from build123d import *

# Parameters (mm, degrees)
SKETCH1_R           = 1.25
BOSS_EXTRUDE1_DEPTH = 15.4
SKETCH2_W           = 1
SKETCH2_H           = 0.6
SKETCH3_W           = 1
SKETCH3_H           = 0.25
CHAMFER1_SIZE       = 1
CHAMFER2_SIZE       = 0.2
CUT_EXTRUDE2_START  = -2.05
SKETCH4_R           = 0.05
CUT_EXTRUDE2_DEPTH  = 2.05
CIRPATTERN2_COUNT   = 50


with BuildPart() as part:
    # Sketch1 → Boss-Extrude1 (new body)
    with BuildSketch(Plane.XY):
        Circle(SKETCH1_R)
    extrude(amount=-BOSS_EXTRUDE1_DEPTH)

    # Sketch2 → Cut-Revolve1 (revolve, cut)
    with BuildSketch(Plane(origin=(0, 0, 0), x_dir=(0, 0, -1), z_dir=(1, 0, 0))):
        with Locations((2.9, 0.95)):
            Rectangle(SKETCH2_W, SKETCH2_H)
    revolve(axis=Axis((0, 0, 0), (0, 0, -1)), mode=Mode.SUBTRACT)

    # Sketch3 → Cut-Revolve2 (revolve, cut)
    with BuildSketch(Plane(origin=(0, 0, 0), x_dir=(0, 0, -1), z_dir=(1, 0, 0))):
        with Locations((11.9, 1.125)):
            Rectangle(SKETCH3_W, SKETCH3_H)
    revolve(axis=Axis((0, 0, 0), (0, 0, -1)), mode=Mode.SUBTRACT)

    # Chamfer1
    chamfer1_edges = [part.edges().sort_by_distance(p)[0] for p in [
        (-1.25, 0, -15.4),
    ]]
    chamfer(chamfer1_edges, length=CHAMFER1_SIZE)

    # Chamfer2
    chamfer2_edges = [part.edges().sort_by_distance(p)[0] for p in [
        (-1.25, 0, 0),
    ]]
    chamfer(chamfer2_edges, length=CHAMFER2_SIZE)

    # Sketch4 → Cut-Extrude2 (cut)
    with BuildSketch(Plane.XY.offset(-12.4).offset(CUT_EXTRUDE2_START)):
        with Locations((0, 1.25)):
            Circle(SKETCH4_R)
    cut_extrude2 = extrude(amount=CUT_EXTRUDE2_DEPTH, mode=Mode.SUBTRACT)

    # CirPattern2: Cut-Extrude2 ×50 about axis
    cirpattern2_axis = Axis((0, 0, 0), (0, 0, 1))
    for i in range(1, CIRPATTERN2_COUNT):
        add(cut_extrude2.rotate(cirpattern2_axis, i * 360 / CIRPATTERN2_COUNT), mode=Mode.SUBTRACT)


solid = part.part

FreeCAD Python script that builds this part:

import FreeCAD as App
import Part
import Sketcher
from FreeCAD import Vector


def edges_at(feature, points):
    """Names of the edges that pass closest to the given points."""
    edges = feature.Shape.Edges
    near = lambda p: min(range(len(edges)), key=lambda i: edges[i].distToShape(Part.Vertex(*p))[0])
    return sorted({f"Edge{near(p) + 1}" for p in points})


def add_polygon(sketch, points):
    """Adds a closed chain of lines whose ends are joined by coincident constraints."""
    first, n = sketch.GeometryCount, len(points)
    for a, b in zip(points, points[1:] + points[:1]):
        sketch.addGeometry(Part.LineSegment(App.Vector(*a, 0), App.Vector(*b, 0)), False)
    for i in range(n):
        sketch.addConstraint(Sketcher.Constraint("Coincident", first + i, 2, first + (i + 1) % n, 1))

doc = App.newDocument("Part")
body = doc.addObject("PartDesign::Body", "Body")

# Sketch on XY plane
sketch1 = body.newObject("Sketcher::SketchObject", "Sketch")
sketch1.AttachmentSupport = (doc.getObject("XY_Plane"), [""])
sketch1.MapMode = "FlatFace"
sketch1.addGeometry(Part.Circle(Vector(0, 0, 0), Vector(0, 0, 1), 1.2), False)
sketch1.addConstraint([
    Sketcher.Constraint("Coincident", 0, 3, -1, 1),
    Sketcher.Constraint("Diameter", 0, 2.5),
])
pad1 = body.newObject("PartDesign::Pad", "Pad")
pad1.Profile = sketch1
pad1.Length = 15.4
pad1.Reversed = True

# Sketch on YZ plane
sketch2 = body.newObject("Sketcher::SketchObject", "Sketch001")
sketch2.AttachmentSupport = (doc.getObject("YZ_Plane"), [""])
sketch2.MapMode = "FlatFace"
add_polygon(sketch2, [(1.2, -2.4), (0.7, -2.4), (0.7, -3.4), (1.2, -3.4)])  # lines 0-3
sketch2.addConstraint([
    Sketcher.Constraint("Horizontal", 0),
    Sketcher.Constraint("Vertical", 1),
    Sketcher.Constraint("Horizontal", 2),
    Sketcher.Constraint("Vertical", 3),
    Sketcher.Constraint("DistanceY", 1, 2, 1, 1, 1.0),
    Sketcher.Constraint("DistanceX", 0, 2, 0, 1, 0.6),
    Sketcher.Constraint("DistanceY", 0, 2, -1, 1, 2.4),
    Sketcher.Constraint("DistanceX", -1, 1, 0, 2, 0.65),
])
groove = body.newObject("PartDesign::Groove", "Groove")
groove.Profile = sketch2
groove.ReferenceAxis = (sketch2, ["V_Axis"])
groove.Angle = 360

# Sketch on YZ plane
sketch3 = body.newObject("Sketcher::SketchObject", "Sketch002")
sketch3.AttachmentSupport = (doc.getObject("YZ_Plane"), [""])
sketch3.MapMode = "FlatFace"
add_polygon(sketch3, [(1.25, -11.4), (1, -11.4), (1, -12.4), (1.25, -12.4)])  # lines 0-3
sketch3.addConstraint([
    Sketcher.Constraint("Horizontal", 0),
    Sketcher.Constraint("Vertical", 1),
    Sketcher.Constraint("Horizontal", 2),
    Sketcher.Constraint("Vertical", 3),
    Sketcher.Constraint("DistanceY", 1, 2, 1, 1, 1.0),
    Sketcher.Constraint("DistanceX", -1, 1, 0, 2, 1.0),
    Sketcher.Constraint("DistanceX", 0, 2, 0, 1, 0.25),
    Sketcher.Constraint("DistanceY", 0, 2, -1, 1, 11.4),
])
groove2 = body.newObject("PartDesign::Groove", "Groove001")
groove2.Profile = sketch3
groove2.ReferenceAxis = (sketch3, ["V_Axis"])
groove2.Angle = 360
doc.recompute()

chamfer = body.newObject("PartDesign::Chamfer", "Chamfer")
chamfer.Base = (groove2, edges_at(groove2, [(-1.25, 0, -15.4)]))
chamfer.Size = 1
doc.recompute()

chamfer2 = body.newObject("PartDesign::Chamfer", "Chamfer001")
chamfer2.Base = (chamfer, edges_at(chamfer, [(-1.25, 0, 0)]))
chamfer2.Size = 0.2

# Sketch on XY plane
sketch4 = body.newObject("Sketcher::SketchObject", "Sketch003")
sketch4.AttachmentSupport = (doc.getObject("XY_Plane"), [""])
sketch4.MapMode = "FlatFace"
sketch4.AttachmentOffset = App.Placement(Vector(0, 0, -14.45), App.Rotation())
sketch4.addGeometry(Part.Circle(Vector(0, 1.25, 0), Vector(0, 0, 1), 0.05), False)
sketch4.addConstraint([
    Sketcher.Constraint("PointOnObject", 0, 3, -2),
    Sketcher.Constraint("Diameter", 0, 0.1),
    Sketcher.Constraint("DistanceY", -1, 1, 0, 3, 1.25),
])
pocket1 = body.newObject("PartDesign::Pocket", "Pocket")
pocket1.Profile = sketch4
pocket1.Length = 2.05
pocket1.Reversed = True
doc.recompute()

polarpattern = body.newObject("PartDesign::PolarPattern", "PolarPattern")
polarpattern.Originals = [pocket1]
polarpattern.Axis = (doc.getObject("Z_Axis"), [""])
polarpattern.Angle = 360
polarpattern.Occurrences = 50
body.Tip = polarpattern

doc.recompute()
